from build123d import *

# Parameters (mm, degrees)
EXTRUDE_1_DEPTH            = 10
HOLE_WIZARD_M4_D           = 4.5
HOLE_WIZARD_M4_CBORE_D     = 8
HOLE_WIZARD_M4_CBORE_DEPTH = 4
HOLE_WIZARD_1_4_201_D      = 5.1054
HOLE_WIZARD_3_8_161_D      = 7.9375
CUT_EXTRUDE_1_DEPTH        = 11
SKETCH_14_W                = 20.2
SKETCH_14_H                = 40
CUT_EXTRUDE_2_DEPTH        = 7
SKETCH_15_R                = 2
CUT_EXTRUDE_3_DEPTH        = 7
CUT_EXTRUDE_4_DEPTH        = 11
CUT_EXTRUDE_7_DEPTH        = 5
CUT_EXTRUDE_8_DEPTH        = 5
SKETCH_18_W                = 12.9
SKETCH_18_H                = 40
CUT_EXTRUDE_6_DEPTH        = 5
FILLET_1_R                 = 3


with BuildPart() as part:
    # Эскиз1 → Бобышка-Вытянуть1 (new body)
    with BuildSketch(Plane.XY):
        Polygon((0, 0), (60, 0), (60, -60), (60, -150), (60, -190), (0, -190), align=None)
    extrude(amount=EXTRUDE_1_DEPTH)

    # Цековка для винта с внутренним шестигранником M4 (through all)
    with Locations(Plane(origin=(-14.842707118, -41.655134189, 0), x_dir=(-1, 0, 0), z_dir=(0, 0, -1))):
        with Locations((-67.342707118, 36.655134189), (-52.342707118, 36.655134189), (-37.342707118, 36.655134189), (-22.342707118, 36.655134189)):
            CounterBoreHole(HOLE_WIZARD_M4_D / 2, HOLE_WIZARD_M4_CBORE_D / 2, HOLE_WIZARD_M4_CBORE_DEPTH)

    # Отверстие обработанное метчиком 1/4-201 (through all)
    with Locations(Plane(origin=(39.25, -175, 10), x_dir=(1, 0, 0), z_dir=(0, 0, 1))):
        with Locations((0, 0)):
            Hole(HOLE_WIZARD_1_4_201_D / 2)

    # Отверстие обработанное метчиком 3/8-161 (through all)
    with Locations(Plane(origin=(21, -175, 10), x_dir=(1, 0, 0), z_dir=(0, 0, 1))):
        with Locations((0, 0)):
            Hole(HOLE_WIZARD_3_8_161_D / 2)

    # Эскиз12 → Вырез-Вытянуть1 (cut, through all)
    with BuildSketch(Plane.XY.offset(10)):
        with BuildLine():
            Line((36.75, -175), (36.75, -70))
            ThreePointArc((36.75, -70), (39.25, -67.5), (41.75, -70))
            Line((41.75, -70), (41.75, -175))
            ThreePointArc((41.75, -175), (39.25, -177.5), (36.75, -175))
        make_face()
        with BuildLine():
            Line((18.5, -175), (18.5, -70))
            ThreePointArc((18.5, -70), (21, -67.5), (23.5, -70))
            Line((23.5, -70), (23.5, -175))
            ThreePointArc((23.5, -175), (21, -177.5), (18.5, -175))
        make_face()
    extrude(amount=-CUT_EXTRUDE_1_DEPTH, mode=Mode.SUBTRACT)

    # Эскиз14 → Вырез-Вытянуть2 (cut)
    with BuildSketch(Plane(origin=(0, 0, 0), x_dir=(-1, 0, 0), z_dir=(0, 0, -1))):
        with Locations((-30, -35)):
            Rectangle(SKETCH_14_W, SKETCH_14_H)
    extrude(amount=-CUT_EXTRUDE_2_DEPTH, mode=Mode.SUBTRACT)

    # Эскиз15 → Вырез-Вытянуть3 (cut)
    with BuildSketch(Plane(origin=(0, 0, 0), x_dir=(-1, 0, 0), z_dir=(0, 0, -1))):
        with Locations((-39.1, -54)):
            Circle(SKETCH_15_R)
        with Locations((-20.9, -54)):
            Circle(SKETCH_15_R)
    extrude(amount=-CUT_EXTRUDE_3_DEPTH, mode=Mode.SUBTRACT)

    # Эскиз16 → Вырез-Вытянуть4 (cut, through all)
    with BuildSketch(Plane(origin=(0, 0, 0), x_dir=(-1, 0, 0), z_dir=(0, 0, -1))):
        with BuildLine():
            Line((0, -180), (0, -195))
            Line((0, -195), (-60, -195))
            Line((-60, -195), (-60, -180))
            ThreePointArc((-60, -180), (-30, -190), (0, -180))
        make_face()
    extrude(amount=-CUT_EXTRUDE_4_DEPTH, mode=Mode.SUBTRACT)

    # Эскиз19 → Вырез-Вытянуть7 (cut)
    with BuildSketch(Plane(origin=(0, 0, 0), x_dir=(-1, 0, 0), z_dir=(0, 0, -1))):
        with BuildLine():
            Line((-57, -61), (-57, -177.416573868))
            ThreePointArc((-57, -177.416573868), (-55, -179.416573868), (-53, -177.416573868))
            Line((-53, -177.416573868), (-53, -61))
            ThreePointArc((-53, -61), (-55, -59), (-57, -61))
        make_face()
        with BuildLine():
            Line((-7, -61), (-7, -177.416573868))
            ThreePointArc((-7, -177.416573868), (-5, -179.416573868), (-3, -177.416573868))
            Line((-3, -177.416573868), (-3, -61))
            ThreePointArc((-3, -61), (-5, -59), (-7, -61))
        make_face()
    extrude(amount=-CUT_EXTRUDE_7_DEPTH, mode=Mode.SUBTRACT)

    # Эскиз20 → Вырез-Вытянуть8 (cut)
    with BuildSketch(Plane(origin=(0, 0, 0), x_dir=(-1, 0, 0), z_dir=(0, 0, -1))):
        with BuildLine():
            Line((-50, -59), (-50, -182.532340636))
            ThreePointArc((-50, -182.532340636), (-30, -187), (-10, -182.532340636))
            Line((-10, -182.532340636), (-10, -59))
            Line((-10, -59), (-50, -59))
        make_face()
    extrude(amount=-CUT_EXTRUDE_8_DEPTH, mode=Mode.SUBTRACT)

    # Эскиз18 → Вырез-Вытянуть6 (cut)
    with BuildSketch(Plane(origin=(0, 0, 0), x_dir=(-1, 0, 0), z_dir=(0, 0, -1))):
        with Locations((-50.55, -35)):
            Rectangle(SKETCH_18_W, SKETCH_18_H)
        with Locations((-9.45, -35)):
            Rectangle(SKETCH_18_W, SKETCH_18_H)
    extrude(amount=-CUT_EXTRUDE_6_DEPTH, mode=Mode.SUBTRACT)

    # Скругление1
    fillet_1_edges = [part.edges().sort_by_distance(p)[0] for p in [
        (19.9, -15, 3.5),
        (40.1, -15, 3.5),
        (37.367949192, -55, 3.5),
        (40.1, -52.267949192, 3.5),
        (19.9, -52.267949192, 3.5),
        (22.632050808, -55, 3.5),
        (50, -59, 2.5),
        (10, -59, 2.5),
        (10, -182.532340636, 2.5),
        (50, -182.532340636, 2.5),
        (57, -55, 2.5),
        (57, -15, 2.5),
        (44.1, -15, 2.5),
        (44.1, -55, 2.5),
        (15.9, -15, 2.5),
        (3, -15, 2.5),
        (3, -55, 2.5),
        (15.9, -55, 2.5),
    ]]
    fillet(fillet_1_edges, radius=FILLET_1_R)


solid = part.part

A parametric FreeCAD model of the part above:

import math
import FreeCAD as App
import Part
import Sketcher


def edges_at(feature, points):
    """Names of the edges that pass closest to the given points."""
    edges = feature.Shape.Edges
    near = lambda p: min(range(len(edges)), key=lambda i: edges[i].distToShape(Part.Vertex(*p))[0])
    return sorted({f"Edge{near(p) + 1}" for p in points})


def add_polygon(sketch, points):
    """Adds a closed chain of lines whose ends are joined by coincident constraints."""
    first, n = sketch.GeometryCount, len(points)
    for a, b in zip(points, points[1:] + points[:1]):
        sketch.addGeometry(Part.LineSegment(App.Vector(*a, 0), App.Vector(*b, 0)), False)
    for i in range(n):
        sketch.addConstraint(Sketcher.Constraint("Coincident", first + i, 2, first + (i + 1) % n, 1))

doc = App.newDocument("Part")
params = doc.addObject("Spreadsheet::Sheet", "Params")
for row, (alias, value) in enumerate([
    ("sketch1_width", "60 mm"),
    ("sketch1_height", "190 mm"),
    ("pad1_length", "10 mm"),
    ("sketch2_diameter", "4.5 mm"),
    ("hole_diameter", "4.5 mm"),
    ("hole_cbore_diameter", "8 mm"),
    ("hole_cbore_depth", "4 mm"),
    ("hole2_diameter", "5.1054 mm"),
    ("hole3_diameter", "7.9375 mm"),
    ("sketch5_radius", "2.5 mm"),
    ("sketch5_height", "105 mm"),
    ("sketch6_height", "40 mm"),
    ("sketch6_width", "20.2 mm"),
    ("pocket2_length", "7 mm"),
    ("sketch7_diameter", "4 mm"),
    ("pocket3_length", "7 mm"),
    ("sketch8_radius", "50 mm"),
    ("sketch8_width", "60 mm"),
    ("sketch8_height", "15 mm"),
    ("sketch9_radius", "2 mm"),
    ("pocket5_length", "5 mm"),
    ("sketch10_radius", "47 mm"),
    ("sketch10_width", "40 mm"),
    ("pocket6_length", "5 mm"),
    ("sketch11_height", "40 mm"),
    ("sketch11_width", "12.9 mm"),
    ("pocket7_length", "5 mm"),
    ("fillet_radius", "3 mm"),
], start=1):
    params.set(f"A{row}", alias)
    params.set(f"B{row}", "=" + value)
    params.setAlias(f"B{row}", alias)

body = doc.addObject("PartDesign::Body", "Body")

sketch1 = doc.addObject("Sketcher::SketchObject", "Sketch")
body.addObject(sketch1)
sketch1.AttachmentSupport = (doc.XY_Plane, [""])
sketch1.MapMode = "FlatFace"
add_polygon(sketch1, [(60, 0), (0, 0), (0, -190), (60, -190)])
sketch1.addConstraint([
    Sketcher.Constraint("Horizontal", 0),
    Sketcher.Constraint("Vertical", 1),
    Sketcher.Constraint("Horizontal", 2),
    Sketcher.Constraint("Vertical", 3),
    Sketcher.Constraint("Coincident", 0, 2, -1, 1),
    Sketcher.Constraint("DistanceX", 0, 2, 0, 1, 60.0),
    Sketcher.Constraint("DistanceY", 1, 2, 1, 1, 190.0),
])
sketch1.setExpression("Constraints[9]", "Params.sketch1_width")
sketch1.setExpression("Constraints[10]", "Params.sketch1_height")
pad1 = doc.addObject("PartDesign::Pad", "Pad")
body.addObject(pad1)
pad1.Profile = sketch1
pad1.setExpression("Length", "Params.pad1_length")

sketch2 = doc.addObject("Sketcher::SketchObject", "Sketch001")
body.addObject(sketch2)
sketch2.AttachmentSupport = (doc.XY_Plane, [""])
sketch2.MapMode = "FlatFace"
sketch2.addGeometry([
    Part.Circle(App.Vector(52.5, -5, 0), App.Vector(0, 0, 1), 2.2),
    Part.Circle(App.Vector(37.5, -5, 0), App.Vector(0, 0, 1), 2.2),
    Part.Circle(App.Vector(22.5, -5, 0), App.Vector(0, 0, 1), 2.2),
    Part.Circle(App.Vector(7.5, -5, 0), App.Vector(0, 0, 1), 2.2),
], False)
sketch2.addConstraint([
    Sketcher.Constraint("Equal", 0, 1),
    Sketcher.Constraint("Equal", 1, 2),
    Sketcher.Constraint("Equal", 2, 3),
    Sketcher.Constraint("Horizontal", 0, 3, 1, 3),
    Sketcher.Constraint("Horizontal", 1, 3, 2, 3),
    Sketcher.Constraint("Horizontal", 2, 3, 3, 3),
    Sketcher.Constraint("Diameter", 0, 4.5),
    Sketcher.Constraint("DistanceY", 0, 3, -1, 1, 5.0),
    Sketcher.Constraint("DistanceX", 1, 3, 0, 3, 15.0),
    Sketcher.Constraint("DistanceX", 2, 3, 1, 3, 15.0),
    Sketcher.Constraint("DistanceX", 3, 3, 2, 3, 15.0),
    Sketcher.Constraint("DistanceX", -1, 1, 0, 3, 52.5),
])
sketch2.setExpression("Constraints[6]", "Params.sketch2_diameter")
doc.recompute()
hole = doc.addObject("PartDesign::Hole", "Hole")
body.addObject(hole)
hole.Profile = sketch2
hole.ThreadType = "None"
hole.setExpression("Diameter", "Params.hole_diameter")
hole.DepthType = "ThroughAll"
hole.HoleCutType = "Counterbore"
hole.setExpression("HoleCutDiameter", "Params.hole_cbore_diameter")
hole.setExpression("HoleCutDepth", "Params.hole_cbore_depth")
hole.Reversed = True

sketch3 = doc.addObject("Sketcher::SketchObject", "Sketch002")
body.addObject(sketch3)
sketch3.AttachmentSupport = (doc.XY_Plane, [""])
sketch3.MapMode = "FlatFace"
sketch3.AttachmentOffset = App.Placement(App.Vector(0, 0, 10), App.Rotation())
sketch3.addGeometry(Part.Circle(App.Vector(39.2, -175, 0), App.Vector(0, 0, 1), 2.6), False)
sketch3.addConstraint([
    Sketcher.Constraint("DistanceY", 0, 3, -1, 1, 175.0),
    Sketcher.Constraint("Diameter", 0, 5.1054),
    Sketcher.Constraint("DistanceX", -1, 1, 0, 3, 39.25),
])
doc.recompute()
hole2 = doc.addObject("PartDesign::Hole", "Hole001")
body.addObject(hole2)
hole2.Profile = sketch3
hole2.ThreadType = "None"
hole2.setExpression("Diameter", "Params.hole2_diameter")
hole2.DepthType = "ThroughAll"

sketch4 = doc.addObject("Sketcher::SketchObject", "Sketch003")
body.addObject(sketch4)
sketch4.AttachmentSupport = (doc.XY_Plane, [""])
sketch4.MapMode = "FlatFace"
sketch4.AttachmentOffset = App.Placement(App.Vector(0, 0, 10), App.Rotation())
sketch4.addGeometry(Part.Circle(App.Vector(21, -175, 0), App.Vector(0, 0, 1), 4), False)
sketch4.addConstraint([
    Sketcher.Constraint("DistanceX", -1, 1, 0, 3, 21.0),
    Sketcher.Constraint("DistanceY", 0, 3, -1, 1, 175.0),
    Sketcher.Constraint("Diameter", 0, 7.9375),
])
doc.recompute()
hole3 = doc.addObject("PartDesign::Hole", "Hole002")
body.addObject(hole3)
hole3.Profile = sketch4
hole3.ThreadType = "None"
hole3.setExpression("Diameter", "Params.hole3_diameter")
hole3.DepthType = "ThroughAll"

sketch5 = doc.addObject("Sketcher::SketchObject", "Sketch004")
body.addObject(sketch5)
sketch5.AttachmentSupport = (doc.XY_Plane, [""])
sketch5.MapMode = "FlatFace"
sketch5.AttachmentOffset = App.Placement(App.Vector(0, 0, 10), App.Rotation())
sketch5.addGeometry([
    Part.LineSegment(App.Vector(36.8, -70, 0), App.Vector(36.8, -175, 0)),
    Part.ArcOfCircle(Part.Circle(App.Vector(39.2, -175, 0), App.Vector(0, 0, 1), 2.5), math.radians(180), math.radians(360)),
    Part.LineSegment(App.Vector(41.8, -175, 0), App.Vector(41.8, -70, 0)),
    Part.ArcOfCircle(Part.Circle(App.Vector(39.2, -70, 0), App.Vector(0, 0, 1), 2.5), math.radians(0), math.radians(180)),
    Part.LineSegment(App.Vector(18.5, -70, 0), App.Vector(18.5, -175, 0)),
    Part.ArcOfCircle(Part.Circle(App.Vector(21, -175, 0), App.Vector(0, 0, 1), 2.5), math.radians(180), math.radians(360)),
    Part.LineSegment(App.Vector(23.5, -175, 0), App.Vector(23.5, -70, 0)),
    Part.ArcOfCircle(Part.Circle(App.Vector(21, -70, 0), App.Vector(0, 0, 1), 2.5), math.radians(0), math.radians(180)),
], False)
sketch5.addConstraint([
    Sketcher.Constraint("Tangent", 0, 2, 1, 1),
    Sketcher.Constraint("Tangent", 1, 2, 2, 1),
    Sketcher.Constraint("Tangent", 2, 2, 3, 1),
    Sketcher.Constraint("Tangent", 3, 2, 0, 1),
    Sketcher.Constraint("Tangent", 4, 2, 5, 1),
    Sketcher.Constraint("Tangent", 5, 2, 6, 1),
    Sketcher.Constraint("Tangent", 6, 2, 7, 1),
    Sketcher.Constraint("Tangent", 7, 2, 4, 1),
    Sketcher.Constraint("Vertical", 0),
    Sketcher.Constraint("Vertical", 2),
    Sketcher.Constraint("Vertical", 4),
    Sketcher.Constraint("Vertical", 6),
    Sketcher.Constraint("Equal", 3, 5),
    Sketcher.Constraint("Horizontal", 1, 3, 5, 3),
    Sketcher.Constraint("Horizontal", 3, 3, 7, 3),
    Sketcher.Constraint("Radius", 1, 2.5),
    Sketcher.Constraint("DistanceY", 0, 2, 0, 1, 105.0),
    Sketcher.Constraint("DistanceY", 1, 3, -1, 1, 175.0),
    Sketcher.Constraint("DistanceX", -1, 1, 5, 3, 21.0),
    Sketcher.Constraint("DistanceX", -1, 1, 1, 3, 39.25),
])
sketch5.setExpression("Constraints[15]", "Params.sketch5_radius")
sketch5.setExpression("Constraints[16]", "Params.sketch5_height")
pocket1 = doc.addObject("PartDesign::Pocket", "Pocket")
body.addObject(pocket1)
pocket1.Profile = sketch5
pocket1.Type = "ThroughAll"

sketch6 = doc.addObject("Sketcher::SketchObject", "Sketch005")
body.addObject(sketch6)
sketch6.AttachmentSupport = (doc.XY_Plane, [""])
sketch6.MapMode = "FlatFace"
add_polygon(sketch6, [(40, -15), (40, -55), (20, -55), (20, -15)])
sketch6.addConstraint([
    Sketcher.Constraint("Vertical", 0),
    Sketcher.Constraint("Horizontal", 1),
    Sketcher.Constraint("Vertical", 2),
    Sketcher.Constraint("Horizontal", 3),
    Sketcher.Constraint("DistanceY", 0, 2, 0, 1, 40.0),
    Sketcher.Constraint("DistanceX", 1, 2, 1, 1, 20.2),
    Sketcher.Constraint("DistanceY", 0, 2, -1, 1, 55.0),
    Sketcher.Constraint("DistanceX", -1, 1, 0, 2, 40.1),
])
sketch6.setExpression("Constraints[8]", "Params.sketch6_height")
sketch6.setExpression("Constraints[9]", "Params.sketch6_width")
pocket2 = doc.addObject("PartDesign::Pocket", "Pocket001")
body.addObject(pocket2)
pocket2.Profile = sketch6
pocket2.setExpression("Length", "Params.pocket2_length")
pocket2.Reversed = True

sketch7 = doc.addObject("Sketcher::SketchObject", "Sketch006")
body.addObject(sketch7)
sketch7.AttachmentSupport = (doc.XY_Plane, [""])
sketch7.MapMode = "FlatFace"
sketch7.addGeometry([
    Part.Circle(App.Vector(39.1, -54, 0), App.Vector(0, 0, 1), 2),
    Part.Circle(App.Vector(20.9, -54, 0), App.Vector(0, 0, 1), 2),
], False)
sketch7.addConstraint([
    Sketcher.Constraint("Equal", 0, 1),
    Sketcher.Constraint("Horizontal", 0, 3, 1, 3),
    Sketcher.Constraint("Diameter", 0, 4.0),
    Sketcher.Constraint("DistanceY", 0, 3, -1, 1, 54.0),
    Sketcher.Constraint("DistanceX", -1, 1, 0, 3, 39.1),
    Sketcher.Constraint("DistanceX", -1, 1, 1, 3, 20.9),
])
sketch7.setExpression("Constraints[2]", "Params.sketch7_diameter")
pocket3 = doc.addObject("PartDesign::Pocket", "Pocket002")
body.addObject(pocket3)
pocket3.Profile = sketch7
pocket3.setExpression("Length", "Params.pocket3_length")
pocket3.Reversed = True

sketch8 = doc.addObject("Sketcher::SketchObject", "Sketch007")
body.addObject(sketch8)
sketch8.AttachmentSupport = (doc.XY_Plane, [""])
sketch8.MapMode = "FlatFace"
sketch8.addGeometry([
    Part.LineSegment(App.Vector(0, -195, 0), App.Vector(0, -180, 0)),
    Part.ArcOfCircle(Part.Circle(App.Vector(30, -140, 0), App.Vector(0, 0, 1), 50), math.radians(-127), math.radians(-53)),
    Part.LineSegment(App.Vector(60, -180, 0), App.Vector(60, -195, 0)),
    Part.LineSegment(App.Vector(60, -195, 0), App.Vector(0, -195, 0)),
], False)
sketch8.addConstraint([
    Sketcher.Constraint("Coincident", 0, 2, 1, 1),
    Sketcher.Constraint("Coincident", 1, 2, 2, 1),
    Sketcher.Constraint("Coincident", 2, 2, 3, 1),
    Sketcher.Constraint("Coincident", 3, 2, 0, 1),
    Sketcher.Constraint("Vertical", 0),
    Sketcher.Constraint("Vertical", 2),
    Sketcher.Constraint("Horizontal", 3),
    Sketcher.Constraint("PointOnObject", 0, 2, -2),
    Sketcher.Constraint("Horizontal", 0, 2, 1, 2),
    Sketcher.Constraint("Radius", 1, 50.0),
    Sketcher.Constraint("DistanceX", 3, 2, 3, 1, 60.0),
    Sketcher.Constraint("DistanceY", 0, 1, 0, 2, 15.0),
    Sketcher.Constraint("DistanceY", 1, 3, -1, 1, 140.0),
])
sketch8.setExpression("Constraints[9]", "Params.sketch8_radius")
sketch8.setExpression("Constraints[10]", "Params.sketch8_width")
sketch8.setExpression("Constraints[11]", "Params.sketch8_height")
pocket4 = doc.addObject("PartDesign::Pocket", "Pocket003")
body.addObject(pocket4)
pocket4.Profile = sketch8
pocket4.Type = "ThroughAll"
pocket4.Reversed = True

sketch9 = doc.addObject("Sketcher::SketchObject", "Sketch008")
body.addObject(sketch9)
sketch9.AttachmentSupport = (doc.XY_Plane, [""])
sketch9.MapMode = "FlatFace"
sketch9.addGeometry([
    Part.LineSegment(App.Vector(57, -61, 0), App.Vector(57, -177.4, 0)),
    Part.ArcOfCircle(Part.Circle(App.Vector(55, -177.4, 0), App.Vector(0, 0, 1), 2), math.radians(180), math.radians(360)),
    Part.LineSegment(App.Vector(53, -177.4, 0), App.Vector(53, -61, 0)),
    Part.ArcOfCircle(Part.Circle(App.Vector(55, -61, 0), App.Vector(0, 0, 1), 2), math.radians(0), math.radians(180)),
    Part.LineSegment(App.Vector(7, -61, 0), App.Vector(7, -177.4, 0)),
    Part.ArcOfCircle(Part.Circle(App.Vector(5, -177.4, 0), App.Vector(0, 0, 1), 2), math.radians(180), math.radians(360)),
    Part.LineSegment(App.Vector(3, -177.4, 0), App.Vector(3, -61, 0)),
    Part.ArcOfCircle(Part.Circle(App.Vector(5, -61, 0), App.Vector(0, 0, 1), 2), math.radians(0), math.radians(180)),
], False)
sketch9.addConstraint([
    Sketcher.Constraint("Tangent", 0, 2, 1, 2),
    Sketcher.Constraint("Tangent", 1, 1, 2, 1),
    Sketcher.Constraint("Tangent", 2, 2, 3, 2),
    Sketcher.Constraint("Tangent", 3, 1, 0, 1),
    Sketcher.Constraint("Tangent", 4, 2, 5, 2),
    Sketcher.Constraint("Tangent", 5, 1, 6, 1),
    Sketcher.Constraint("Tangent", 6, 2, 7, 2),
    Sketcher.Constraint("Tangent", 7, 1, 4, 1),
    Sketcher.Constraint("Vertical", 0),
    Sketcher.Constraint("Vertical", 2),
    Sketcher.Constraint("Vertical", 4),
    Sketcher.Constraint("Vertical", 6),
    Sketcher.Constraint("Equal", 3, 5),
    Sketcher.Constraint("Horizontal", 1, 3, 5, 3),
    Sketcher.Constraint("Horizontal", 3, 3, 7, 3),
    Sketcher.Constraint("Radius", 1, 2.0),
    Sketcher.Constraint("DistanceX", -1, 1, 1, 3, 55.0),
    Sketcher.Constraint("DistanceY", 3, 3, -1, 1, 61.0),
    Sketcher.Constraint("DistanceX", -1, 1, 5, 3, 5.0),
    Sketcher.Constraint("DistanceY", 0, 2, 0, 1, 116.416574),
])
sketch9.setExpression("Constraints[15]", "Params.sketch9_radius")
pocket5 = doc.addObject("PartDesign::Pocket", "Pocket004")
body.addObject(pocket5)
pocket5.Profile = sketch9
pocket5.setExpression("Length", "Params.pocket5_length")
pocket5.Reversed = True

sketch10 = doc.addObject("Sketcher::SketchObject", "Sketch009")
body.addObject(sketch10)
sketch10.AttachmentSupport = (doc.XY_Plane, [""])
sketch10.MapMode = "FlatFace"
sketch10.addGeometry([
    Part.LineSegment(App.Vector(50, -59, 0), App.Vector(50, -183, 0)),
    Part.ArcOfCircle(Part.Circle(App.Vector(30, -140, 0), App.Vector(0, 0, 1), 47), math.radians(-115), math.radians(-65)),
    Part.LineSegment(App.Vector(10, -183, 0), App.Vector(10, -59, 0)),
    Part.LineSegment(App.Vector(10, -59, 0), App.Vector(50, -59, 0)),
], False)
sketch10.addConstraint([
    Sketcher.Constraint("Coincident", 0, 2, 1, 2),
    Sketcher.Constraint("Coincident", 1, 1, 2, 1),
    Sketcher.Constraint("Coincident", 2, 2, 3, 1),
    Sketcher.Constraint("Coincident", 3, 2, 0, 1),
    Sketcher.Constraint("Vertical", 0),
    Sketcher.Constraint("Vertical", 2),
    Sketcher.Constraint("Horizontal", 3),
    Sketcher.Constraint("Horizontal", 0, 2, 1, 1),
    Sketcher.Constraint("Radius", 1, 47.0),
    Sketcher.Constraint("DistanceX", 3, 1, 3, 2, 40.0),
    Sketcher.Constraint("DistanceX", -1, 1, 1, 3, 30.0),
    Sketcher.Constraint("DistanceY", 1, 3, -1, 1, 140.0),
    Sketcher.Constraint("DistanceY", 2, 2, -1, 1, 59.0),
])
sketch10.setExpression("Constraints[8]", "Params.sketch10_radius")
sketch10.setExpression("Constraints[9]", "Params.sketch10_width")
pocket6 = doc.addObject("PartDesign::Pocket", "Pocket005")
body.addObject(pocket6)
pocket6.Profile = sketch10
pocket6.setExpression("Length", "Params.pocket6_length")
pocket6.Reversed = True

sketch11 = doc.addObject("Sketcher::SketchObject", "Sketch010")
body.addObject(sketch11)
sketch11.AttachmentSupport = (doc.XY_Plane, [""])
sketch11.MapMode = "FlatFace"
add_polygon(sketch11, [(57, -15), (57, -55), (44, -55), (44, -15)])
add_polygon(sketch11, [(16, -15), (16, -55), (3, -55), (3, -15)])
sketch11.addConstraint([
    Sketcher.Constraint("Vertical", 0),
    Sketcher.Constraint("Horizontal", 1),
    Sketcher.Constraint("Vertical", 2),
    Sketcher.Constraint("Horizontal", 3),
    Sketcher.Constraint("Vertical", 4),
    Sketcher.Constraint("Horizontal", 5),
    Sketcher.Constraint("Vertical", 6),
    Sketcher.Constraint("Horizontal", 7),
    Sketcher.Constraint("Horizontal", 1, 2, 4, 2),
    Sketcher.Constraint("Horizontal", 3, 2, 6, 2),
    Sketcher.Constraint("Equal", 3, 5),
    Sketcher.Constraint("DistanceY", 0, 2, 0, 1, 40.0),
    Sketcher.Constraint("DistanceX", 1, 2, 1, 1, 12.9),
    Sketcher.Constraint("DistanceX", -1, 1, 0, 2, 57.0),
    Sketcher.Constraint("DistanceY", 0, 2, -1, 1, 55.0),
    Sketcher.Constraint("DistanceX", -1, 1, 5, 2, 3.0),
])
sketch11.setExpression("Constraints[19]", "Params.sketch11_height")
sketch11.setExpression("Constraints[20]", "Params.sketch11_width")
pocket7 = doc.addObject("PartDesign::Pocket", "Pocket006")
body.addObject(pocket7)
pocket7.Profile = sketch11
pocket7.setExpression("Length", "Params.pocket7_length")
pocket7.Reversed = True
doc.recompute()

fillet = doc.addObject("PartDesign::Fillet", "Fillet")
body.addObject(fillet)
fillet.Base = (pocket7, edges_at(pocket7, [
    (19.9, -15, 3.5),
    (40.1, -15, 3.5),
    (37.368, -55, 3.5),
    (40.1, -52.268, 3.5),
    (19.9, -52.268, 3.5),
    (22.632, -55, 3.5),
    (50, -59, 2.5),
    (10, -59, 2.5),
    (10, -182.532, 2.5),
    (50, -182.532, 2.5),
    (57, -55, 2.5),
    (57, -15, 2.5),
    (44.1, -15, 2.5),
    (44.1, -55, 2.5),
    (15.9, -15, 2.5),
    (3, -15, 2.5),
    (3, -55, 2.5),
    (15.9, -55, 2.5),
]))
fillet.setExpression("Radius", "Params.fillet_radius")

doc.recompute()
